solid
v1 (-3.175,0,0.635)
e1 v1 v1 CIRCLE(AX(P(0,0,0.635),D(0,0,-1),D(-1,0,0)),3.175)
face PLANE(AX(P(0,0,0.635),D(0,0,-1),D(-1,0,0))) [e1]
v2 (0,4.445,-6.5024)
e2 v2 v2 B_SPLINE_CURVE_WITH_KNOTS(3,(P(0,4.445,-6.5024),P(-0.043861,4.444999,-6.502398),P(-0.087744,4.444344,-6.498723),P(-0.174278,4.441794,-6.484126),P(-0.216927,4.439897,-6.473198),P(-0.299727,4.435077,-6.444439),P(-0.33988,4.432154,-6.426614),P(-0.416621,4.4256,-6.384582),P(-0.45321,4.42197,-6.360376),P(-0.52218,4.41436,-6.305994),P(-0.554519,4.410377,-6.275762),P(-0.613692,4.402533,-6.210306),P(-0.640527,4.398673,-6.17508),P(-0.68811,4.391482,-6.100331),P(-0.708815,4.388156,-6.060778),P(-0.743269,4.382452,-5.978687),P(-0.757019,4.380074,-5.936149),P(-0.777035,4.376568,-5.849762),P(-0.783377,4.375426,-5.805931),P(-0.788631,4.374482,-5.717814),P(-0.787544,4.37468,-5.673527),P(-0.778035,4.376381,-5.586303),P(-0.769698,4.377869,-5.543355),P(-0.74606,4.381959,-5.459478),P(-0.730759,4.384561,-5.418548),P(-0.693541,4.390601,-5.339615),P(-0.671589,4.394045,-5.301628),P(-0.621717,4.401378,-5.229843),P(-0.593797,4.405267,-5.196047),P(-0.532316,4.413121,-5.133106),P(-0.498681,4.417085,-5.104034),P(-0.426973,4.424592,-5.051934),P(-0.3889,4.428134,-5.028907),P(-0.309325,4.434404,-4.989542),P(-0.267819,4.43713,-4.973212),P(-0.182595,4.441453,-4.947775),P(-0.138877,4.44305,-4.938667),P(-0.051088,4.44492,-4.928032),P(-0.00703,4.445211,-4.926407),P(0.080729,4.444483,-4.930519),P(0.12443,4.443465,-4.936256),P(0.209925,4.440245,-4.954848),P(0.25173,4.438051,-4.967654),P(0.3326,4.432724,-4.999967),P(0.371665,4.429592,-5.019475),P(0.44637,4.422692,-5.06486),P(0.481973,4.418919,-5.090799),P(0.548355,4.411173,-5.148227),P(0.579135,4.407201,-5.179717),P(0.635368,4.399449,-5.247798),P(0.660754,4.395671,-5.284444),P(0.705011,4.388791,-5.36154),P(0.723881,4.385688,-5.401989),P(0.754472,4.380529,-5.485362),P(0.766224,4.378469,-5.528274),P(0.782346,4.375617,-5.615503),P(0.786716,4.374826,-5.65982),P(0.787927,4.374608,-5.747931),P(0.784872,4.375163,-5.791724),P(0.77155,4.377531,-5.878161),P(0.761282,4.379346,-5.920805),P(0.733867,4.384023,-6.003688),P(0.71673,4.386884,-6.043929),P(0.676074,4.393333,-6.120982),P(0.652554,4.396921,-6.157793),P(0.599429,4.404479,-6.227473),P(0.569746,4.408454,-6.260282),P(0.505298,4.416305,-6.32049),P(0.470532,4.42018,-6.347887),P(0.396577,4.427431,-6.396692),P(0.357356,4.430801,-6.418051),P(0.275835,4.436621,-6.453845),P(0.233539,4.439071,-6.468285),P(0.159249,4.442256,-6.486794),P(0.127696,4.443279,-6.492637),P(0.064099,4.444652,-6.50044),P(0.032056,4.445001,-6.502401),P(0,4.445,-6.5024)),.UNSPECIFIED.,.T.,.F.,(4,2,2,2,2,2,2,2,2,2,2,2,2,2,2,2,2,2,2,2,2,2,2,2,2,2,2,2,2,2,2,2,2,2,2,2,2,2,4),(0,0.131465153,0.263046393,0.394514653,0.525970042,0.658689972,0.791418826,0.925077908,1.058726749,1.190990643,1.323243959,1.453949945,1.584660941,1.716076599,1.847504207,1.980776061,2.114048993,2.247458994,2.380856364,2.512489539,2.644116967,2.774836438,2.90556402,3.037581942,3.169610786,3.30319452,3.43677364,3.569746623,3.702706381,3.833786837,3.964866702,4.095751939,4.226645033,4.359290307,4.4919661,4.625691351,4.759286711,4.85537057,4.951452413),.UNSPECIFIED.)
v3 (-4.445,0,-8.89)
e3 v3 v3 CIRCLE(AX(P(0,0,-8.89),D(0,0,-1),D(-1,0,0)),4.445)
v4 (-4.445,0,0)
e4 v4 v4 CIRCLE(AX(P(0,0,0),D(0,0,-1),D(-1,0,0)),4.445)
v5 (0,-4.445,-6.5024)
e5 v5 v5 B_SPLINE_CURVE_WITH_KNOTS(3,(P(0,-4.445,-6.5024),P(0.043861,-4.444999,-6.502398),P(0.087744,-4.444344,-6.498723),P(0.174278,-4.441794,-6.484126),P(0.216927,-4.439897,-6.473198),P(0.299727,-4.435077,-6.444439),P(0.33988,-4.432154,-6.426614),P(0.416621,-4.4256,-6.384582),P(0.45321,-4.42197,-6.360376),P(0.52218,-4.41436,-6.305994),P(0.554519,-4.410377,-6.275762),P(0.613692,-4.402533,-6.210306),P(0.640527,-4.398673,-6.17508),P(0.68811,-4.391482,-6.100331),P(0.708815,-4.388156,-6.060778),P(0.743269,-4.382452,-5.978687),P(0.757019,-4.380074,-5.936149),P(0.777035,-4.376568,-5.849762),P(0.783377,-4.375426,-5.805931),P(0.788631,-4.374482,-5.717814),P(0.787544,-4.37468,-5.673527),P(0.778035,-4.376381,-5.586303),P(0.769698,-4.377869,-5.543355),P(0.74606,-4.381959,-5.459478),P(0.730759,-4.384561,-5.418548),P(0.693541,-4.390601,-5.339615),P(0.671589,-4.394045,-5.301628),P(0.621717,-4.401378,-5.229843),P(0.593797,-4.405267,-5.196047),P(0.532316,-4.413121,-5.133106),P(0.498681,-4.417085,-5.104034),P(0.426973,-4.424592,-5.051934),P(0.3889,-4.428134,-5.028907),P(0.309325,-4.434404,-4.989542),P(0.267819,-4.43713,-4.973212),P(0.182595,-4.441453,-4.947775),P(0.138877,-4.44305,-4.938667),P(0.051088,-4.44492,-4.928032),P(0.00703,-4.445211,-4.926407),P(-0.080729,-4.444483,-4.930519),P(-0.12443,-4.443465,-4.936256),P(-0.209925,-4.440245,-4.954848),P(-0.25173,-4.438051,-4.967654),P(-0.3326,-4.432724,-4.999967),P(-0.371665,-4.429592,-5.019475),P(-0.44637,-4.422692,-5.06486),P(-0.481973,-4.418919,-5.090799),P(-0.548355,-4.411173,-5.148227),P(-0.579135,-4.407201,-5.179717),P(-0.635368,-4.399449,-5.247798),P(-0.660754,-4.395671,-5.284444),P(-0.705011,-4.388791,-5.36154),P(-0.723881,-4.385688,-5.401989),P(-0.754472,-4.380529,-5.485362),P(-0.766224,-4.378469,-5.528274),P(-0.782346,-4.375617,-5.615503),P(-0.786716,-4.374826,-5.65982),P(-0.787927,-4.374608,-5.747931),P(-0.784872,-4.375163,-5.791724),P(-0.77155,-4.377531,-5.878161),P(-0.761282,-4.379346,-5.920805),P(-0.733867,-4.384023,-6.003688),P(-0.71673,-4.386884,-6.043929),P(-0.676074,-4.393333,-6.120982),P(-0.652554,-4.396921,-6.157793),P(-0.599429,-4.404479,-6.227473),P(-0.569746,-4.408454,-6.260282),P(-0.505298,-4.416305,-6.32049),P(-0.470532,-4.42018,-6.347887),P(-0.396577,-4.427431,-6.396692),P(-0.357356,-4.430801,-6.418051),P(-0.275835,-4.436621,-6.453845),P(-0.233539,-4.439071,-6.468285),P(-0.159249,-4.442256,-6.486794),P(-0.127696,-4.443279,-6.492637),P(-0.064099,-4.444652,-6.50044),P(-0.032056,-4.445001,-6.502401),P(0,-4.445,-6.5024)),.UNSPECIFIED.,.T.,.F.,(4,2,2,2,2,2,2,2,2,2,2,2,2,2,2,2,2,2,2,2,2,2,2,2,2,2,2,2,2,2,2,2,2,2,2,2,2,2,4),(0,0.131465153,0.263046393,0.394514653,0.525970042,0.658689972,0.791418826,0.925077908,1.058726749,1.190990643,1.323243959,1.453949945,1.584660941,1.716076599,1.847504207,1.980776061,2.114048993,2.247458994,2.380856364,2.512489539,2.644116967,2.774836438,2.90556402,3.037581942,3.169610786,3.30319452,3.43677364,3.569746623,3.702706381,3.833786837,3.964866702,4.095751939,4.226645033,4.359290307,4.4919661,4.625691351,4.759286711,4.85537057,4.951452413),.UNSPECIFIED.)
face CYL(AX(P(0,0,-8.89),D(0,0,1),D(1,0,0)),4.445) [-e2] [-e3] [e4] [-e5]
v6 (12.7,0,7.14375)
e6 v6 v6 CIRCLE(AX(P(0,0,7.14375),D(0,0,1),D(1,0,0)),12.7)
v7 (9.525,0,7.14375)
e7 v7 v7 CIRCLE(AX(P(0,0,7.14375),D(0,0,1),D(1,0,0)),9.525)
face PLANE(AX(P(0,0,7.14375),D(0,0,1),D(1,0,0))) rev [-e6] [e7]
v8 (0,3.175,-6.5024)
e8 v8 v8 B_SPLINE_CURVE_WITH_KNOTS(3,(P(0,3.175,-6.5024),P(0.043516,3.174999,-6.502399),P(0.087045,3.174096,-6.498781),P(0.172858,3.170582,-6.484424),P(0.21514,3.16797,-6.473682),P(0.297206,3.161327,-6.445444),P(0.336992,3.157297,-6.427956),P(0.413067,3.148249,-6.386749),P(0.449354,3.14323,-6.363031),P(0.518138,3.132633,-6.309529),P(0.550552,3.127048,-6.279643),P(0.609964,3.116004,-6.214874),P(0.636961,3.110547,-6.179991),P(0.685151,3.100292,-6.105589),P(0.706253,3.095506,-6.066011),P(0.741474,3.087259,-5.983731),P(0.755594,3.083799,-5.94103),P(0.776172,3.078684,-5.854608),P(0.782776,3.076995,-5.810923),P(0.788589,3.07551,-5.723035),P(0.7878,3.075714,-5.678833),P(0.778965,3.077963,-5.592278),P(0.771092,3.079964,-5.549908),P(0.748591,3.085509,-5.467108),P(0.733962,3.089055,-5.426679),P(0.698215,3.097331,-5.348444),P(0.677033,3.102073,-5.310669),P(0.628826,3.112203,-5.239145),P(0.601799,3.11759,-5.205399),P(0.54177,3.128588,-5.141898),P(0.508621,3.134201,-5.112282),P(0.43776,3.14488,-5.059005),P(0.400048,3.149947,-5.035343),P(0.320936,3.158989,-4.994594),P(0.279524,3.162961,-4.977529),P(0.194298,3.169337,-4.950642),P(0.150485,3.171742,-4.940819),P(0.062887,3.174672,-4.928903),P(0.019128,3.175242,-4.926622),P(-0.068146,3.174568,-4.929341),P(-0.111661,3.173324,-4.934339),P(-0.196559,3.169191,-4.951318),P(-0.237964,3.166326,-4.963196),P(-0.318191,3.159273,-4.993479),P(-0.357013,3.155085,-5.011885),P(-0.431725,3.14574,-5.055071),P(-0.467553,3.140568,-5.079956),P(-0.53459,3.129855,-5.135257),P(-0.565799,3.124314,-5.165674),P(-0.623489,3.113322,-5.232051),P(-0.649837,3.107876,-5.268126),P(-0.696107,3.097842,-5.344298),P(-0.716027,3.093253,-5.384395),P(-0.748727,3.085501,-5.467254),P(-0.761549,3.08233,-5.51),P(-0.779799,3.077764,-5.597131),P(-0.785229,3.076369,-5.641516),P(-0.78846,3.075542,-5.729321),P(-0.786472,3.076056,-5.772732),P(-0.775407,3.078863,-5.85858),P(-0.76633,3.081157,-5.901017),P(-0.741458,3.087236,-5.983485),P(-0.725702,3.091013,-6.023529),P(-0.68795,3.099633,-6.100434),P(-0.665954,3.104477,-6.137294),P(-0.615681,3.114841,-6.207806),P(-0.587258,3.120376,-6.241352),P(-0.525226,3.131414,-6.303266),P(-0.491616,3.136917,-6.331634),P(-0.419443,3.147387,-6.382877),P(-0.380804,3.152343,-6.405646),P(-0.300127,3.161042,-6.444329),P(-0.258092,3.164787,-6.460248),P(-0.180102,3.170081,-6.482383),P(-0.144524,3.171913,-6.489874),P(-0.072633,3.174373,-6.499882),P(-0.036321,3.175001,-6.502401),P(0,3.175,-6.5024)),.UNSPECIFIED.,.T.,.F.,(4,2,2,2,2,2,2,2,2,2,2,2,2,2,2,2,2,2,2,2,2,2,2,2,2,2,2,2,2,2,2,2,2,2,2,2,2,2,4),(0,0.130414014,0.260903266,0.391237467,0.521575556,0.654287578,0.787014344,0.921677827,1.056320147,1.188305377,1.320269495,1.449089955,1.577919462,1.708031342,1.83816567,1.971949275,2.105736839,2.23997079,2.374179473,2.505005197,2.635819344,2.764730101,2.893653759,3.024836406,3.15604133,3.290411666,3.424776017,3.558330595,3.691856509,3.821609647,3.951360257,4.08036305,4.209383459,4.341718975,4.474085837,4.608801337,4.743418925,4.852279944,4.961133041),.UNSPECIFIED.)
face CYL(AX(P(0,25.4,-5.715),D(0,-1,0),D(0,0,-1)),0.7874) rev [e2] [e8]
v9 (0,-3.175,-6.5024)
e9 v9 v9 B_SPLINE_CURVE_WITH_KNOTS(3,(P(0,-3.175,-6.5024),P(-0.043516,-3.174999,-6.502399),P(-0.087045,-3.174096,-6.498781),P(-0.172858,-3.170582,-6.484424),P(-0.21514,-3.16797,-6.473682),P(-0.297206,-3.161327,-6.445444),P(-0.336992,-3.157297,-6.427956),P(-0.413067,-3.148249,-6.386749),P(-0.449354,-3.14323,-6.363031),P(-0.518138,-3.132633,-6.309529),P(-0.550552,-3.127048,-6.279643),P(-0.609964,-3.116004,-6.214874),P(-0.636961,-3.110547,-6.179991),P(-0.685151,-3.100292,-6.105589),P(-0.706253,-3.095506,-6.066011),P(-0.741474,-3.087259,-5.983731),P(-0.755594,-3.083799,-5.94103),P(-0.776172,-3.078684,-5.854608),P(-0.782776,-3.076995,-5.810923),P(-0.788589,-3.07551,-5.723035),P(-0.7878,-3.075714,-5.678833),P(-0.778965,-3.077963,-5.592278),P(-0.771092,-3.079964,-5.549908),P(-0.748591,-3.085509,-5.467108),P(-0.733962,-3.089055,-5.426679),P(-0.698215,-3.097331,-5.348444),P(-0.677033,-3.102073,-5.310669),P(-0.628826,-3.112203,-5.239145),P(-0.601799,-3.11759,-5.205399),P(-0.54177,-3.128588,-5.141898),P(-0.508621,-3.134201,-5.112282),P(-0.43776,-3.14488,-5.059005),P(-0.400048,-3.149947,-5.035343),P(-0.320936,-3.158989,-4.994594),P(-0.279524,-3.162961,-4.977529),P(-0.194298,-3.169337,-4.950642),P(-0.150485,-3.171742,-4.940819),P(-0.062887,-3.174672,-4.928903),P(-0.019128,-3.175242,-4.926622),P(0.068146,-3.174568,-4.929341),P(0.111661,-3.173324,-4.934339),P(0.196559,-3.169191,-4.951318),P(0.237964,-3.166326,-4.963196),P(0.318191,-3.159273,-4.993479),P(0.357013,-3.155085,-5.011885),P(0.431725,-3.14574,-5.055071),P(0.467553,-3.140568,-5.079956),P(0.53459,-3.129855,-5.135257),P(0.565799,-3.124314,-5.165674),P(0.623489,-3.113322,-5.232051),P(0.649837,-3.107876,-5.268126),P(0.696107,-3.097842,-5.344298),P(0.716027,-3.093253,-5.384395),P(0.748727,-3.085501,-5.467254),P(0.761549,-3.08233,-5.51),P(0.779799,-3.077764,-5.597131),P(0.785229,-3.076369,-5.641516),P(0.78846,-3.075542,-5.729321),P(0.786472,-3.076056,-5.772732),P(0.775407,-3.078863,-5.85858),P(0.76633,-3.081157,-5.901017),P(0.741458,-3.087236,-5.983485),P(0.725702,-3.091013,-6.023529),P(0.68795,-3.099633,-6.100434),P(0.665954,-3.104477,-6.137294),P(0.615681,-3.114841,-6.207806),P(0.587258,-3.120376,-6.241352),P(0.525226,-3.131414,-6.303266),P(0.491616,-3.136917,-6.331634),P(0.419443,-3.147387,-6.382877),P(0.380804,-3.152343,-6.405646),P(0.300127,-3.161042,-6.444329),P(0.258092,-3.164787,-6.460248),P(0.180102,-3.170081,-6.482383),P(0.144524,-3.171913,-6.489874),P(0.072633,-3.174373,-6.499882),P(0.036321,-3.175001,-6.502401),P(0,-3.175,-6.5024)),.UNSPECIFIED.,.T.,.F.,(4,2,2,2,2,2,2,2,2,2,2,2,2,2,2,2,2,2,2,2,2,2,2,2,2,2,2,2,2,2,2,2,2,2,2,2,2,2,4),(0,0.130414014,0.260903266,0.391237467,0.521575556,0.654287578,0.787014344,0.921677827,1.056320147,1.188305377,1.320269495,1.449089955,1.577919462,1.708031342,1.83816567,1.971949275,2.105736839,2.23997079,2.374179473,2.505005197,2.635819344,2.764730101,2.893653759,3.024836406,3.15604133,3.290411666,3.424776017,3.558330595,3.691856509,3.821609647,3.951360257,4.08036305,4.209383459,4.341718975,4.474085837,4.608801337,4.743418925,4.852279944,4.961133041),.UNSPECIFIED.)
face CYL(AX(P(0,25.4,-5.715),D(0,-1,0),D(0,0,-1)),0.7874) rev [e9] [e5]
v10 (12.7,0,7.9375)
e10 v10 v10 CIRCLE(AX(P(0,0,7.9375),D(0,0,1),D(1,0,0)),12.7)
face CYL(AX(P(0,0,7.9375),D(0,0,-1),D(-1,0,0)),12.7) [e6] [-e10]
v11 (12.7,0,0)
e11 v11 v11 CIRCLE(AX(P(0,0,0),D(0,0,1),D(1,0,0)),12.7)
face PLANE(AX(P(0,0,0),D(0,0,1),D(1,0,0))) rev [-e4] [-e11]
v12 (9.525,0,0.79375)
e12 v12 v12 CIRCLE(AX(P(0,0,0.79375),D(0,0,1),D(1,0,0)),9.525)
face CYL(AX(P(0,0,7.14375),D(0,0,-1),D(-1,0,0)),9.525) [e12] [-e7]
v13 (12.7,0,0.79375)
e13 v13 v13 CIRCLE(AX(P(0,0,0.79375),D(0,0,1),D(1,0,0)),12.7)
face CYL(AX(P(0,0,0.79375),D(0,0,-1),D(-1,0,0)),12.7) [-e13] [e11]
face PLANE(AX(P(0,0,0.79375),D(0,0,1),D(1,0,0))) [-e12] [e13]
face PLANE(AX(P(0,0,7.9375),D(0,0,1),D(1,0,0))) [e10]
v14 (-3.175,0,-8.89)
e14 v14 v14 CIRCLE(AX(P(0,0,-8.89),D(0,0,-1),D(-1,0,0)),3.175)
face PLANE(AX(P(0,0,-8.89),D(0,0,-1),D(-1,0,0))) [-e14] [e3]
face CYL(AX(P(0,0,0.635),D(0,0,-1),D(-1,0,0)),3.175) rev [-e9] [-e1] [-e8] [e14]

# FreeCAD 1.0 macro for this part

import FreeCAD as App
import Part
import Sketcher

V = App.Vector
Q = App.Units.Quantity

doc = App.newDocument("Part")
body = doc.addObject("PartDesign::Body", "Body")

# Sketch on XY plane
sketch1 = doc.addObject("Sketcher::SketchObject", "Sketch")
body.addObject(sketch1)
sketch1.AttachmentSupport = (doc.XY_Plane, [""])
sketch1.MapMode = "FlatFace"
sketch1.addGeometry(Part.Circle(V(0, 0, 0), V(0, 0, 1), 12.7), False)
sketch1.addConstraint([
    Sketcher.Constraint("Coincident", 0, 3, -1, 1),
    Sketcher.Constraint("Diameter", 0, Q("1 in")),
])
pad1 = doc.addObject("PartDesign::Pad", "Pad")
body.addObject(pad1)
pad1.Profile = sketch1
pad1.Length = Q("0.03125 in")

# Sketch on XY plane
sketch2 = doc.addObject("Sketcher::SketchObject", "Sketch001")
body.addObject(sketch2)
sketch2.AttachmentSupport = (doc.XY_Plane, [""])
sketch2.MapMode = "FlatFace"
sketch2.AttachmentOffset = App.Placement(V(0, 0, 0.03125 * 25.4), App.Rotation())
sketch2.addGeometry(Part.Circle(V(0, 0, 0), V(0, 0, 1), 9.525), False)
sketch2.addConstraint([
    Sketcher.Constraint("Coincident", 0, 3, -1, 1),
    Sketcher.Constraint("Diameter", 0, Q("0.75 in")),
])
pad2 = doc.addObject("PartDesign::Pad", "Pad001")
body.addObject(pad2)
pad2.Profile = sketch2
pad2.Length = Q("0.25 in")

# Sketch on XY plane
sketch3 = doc.addObject("Sketcher::SketchObject", "Sketch002")
body.addObject(sketch3)
sketch3.AttachmentSupport = (doc.XY_Plane, [""])
sketch3.MapMode = "FlatFace"
sketch3.AttachmentOffset = App.Placement(V(0, 0, 0.28125 * 25.4), App.Rotation())
sketch3.addGeometry(Part.Circle(V(0, 0, 0), V(0, 0, 1), 12.7), False)
sketch3.addConstraint([
    Sketcher.Constraint("Coincident", 0, 3, -1, 1),
    Sketcher.Constraint("Diameter", 0, Q("1 in")),
])
pad3 = doc.addObject("PartDesign::Pad", "Pad002")
body.addObject(pad3)
pad3.Profile = sketch3
pad3.Length = Q("0.03125 in")

# Sketch on XY plane
sketch4 = doc.addObject("Sketcher::SketchObject", "Sketch003")
body.addObject(sketch4)
sketch4.AttachmentSupport = (doc.XY_Plane, [""])
sketch4.MapMode = "FlatFace"
sketch4.addGeometry(Part.Circle(V(0, 0, 0), V(0, 0, 1), 4.445), False)
sketch4.addConstraint([
    Sketcher.Constraint("Coincident", 0, 3, -1, 1),
    Sketcher.Constraint("Diameter", 0, Q("0.35 in")),
])
pad4 = doc.addObject("PartDesign::Pad", "Pad003")
body.addObject(pad4)
pad4.Profile = sketch4
pad4.Length = Q("0.35 in")
pad4.Reversed = True

# Sketch on XY plane
sketch5 = doc.addObject("Sketcher::SketchObject", "Sketch004")
body.addObject(sketch5)
sketch5.AttachmentSupport = (doc.XY_Plane, [""])
sketch5.MapMode = "FlatFace"
sketch5.AttachmentOffset = App.Placement(V(0, 0, -0.35 * 25.4), App.Rotation())
sketch5.addGeometry(Part.Circle(V(0, 0, 0), V(0, 0, 1), 3.175), False)
sketch5.addConstraint([
    Sketcher.Constraint("Coincident", 0, 3, -1, 1),
    Sketcher.Constraint("Diameter", 0, Q("0.25 in")),
])
pocket1 = doc.addObject("PartDesign::Pocket", "Pocket")
body.addObject(pocket1)
pocket1.Profile = sketch5
pocket1.Length = Q("0.375 in")
pocket1.Reversed = True

# Sketch on XZ plane
sketch6 = doc.addObject("Sketcher::SketchObject", "Sketch005")
body.addObject(sketch6)
sketch6.AttachmentSupport = (doc.XZ_Plane, [""])
sketch6.MapMode = "FlatFace"
sketch6.addGeometry(Part.Circle(V(0, -5.715, 0), V(0, 0, 1), 0.7874), False)
sketch6.addConstraint([
    Sketcher.Constraint("PointOnObject", 0, 3, -2),
    Sketcher.Constraint("Diameter", 0, Q("0.062 in")),
    Sketcher.Constraint("DistanceY", 0, 3, -1, 1, Q("0.225 in")),
])
pocket2 = doc.addObject("PartDesign::Pocket", "Pocket001")
body.addObject(pocket2)
pocket2.Profile = sketch6
pocket2.Type = "ThroughAll"
pocket2.Midplane = True

doc.recompute()
